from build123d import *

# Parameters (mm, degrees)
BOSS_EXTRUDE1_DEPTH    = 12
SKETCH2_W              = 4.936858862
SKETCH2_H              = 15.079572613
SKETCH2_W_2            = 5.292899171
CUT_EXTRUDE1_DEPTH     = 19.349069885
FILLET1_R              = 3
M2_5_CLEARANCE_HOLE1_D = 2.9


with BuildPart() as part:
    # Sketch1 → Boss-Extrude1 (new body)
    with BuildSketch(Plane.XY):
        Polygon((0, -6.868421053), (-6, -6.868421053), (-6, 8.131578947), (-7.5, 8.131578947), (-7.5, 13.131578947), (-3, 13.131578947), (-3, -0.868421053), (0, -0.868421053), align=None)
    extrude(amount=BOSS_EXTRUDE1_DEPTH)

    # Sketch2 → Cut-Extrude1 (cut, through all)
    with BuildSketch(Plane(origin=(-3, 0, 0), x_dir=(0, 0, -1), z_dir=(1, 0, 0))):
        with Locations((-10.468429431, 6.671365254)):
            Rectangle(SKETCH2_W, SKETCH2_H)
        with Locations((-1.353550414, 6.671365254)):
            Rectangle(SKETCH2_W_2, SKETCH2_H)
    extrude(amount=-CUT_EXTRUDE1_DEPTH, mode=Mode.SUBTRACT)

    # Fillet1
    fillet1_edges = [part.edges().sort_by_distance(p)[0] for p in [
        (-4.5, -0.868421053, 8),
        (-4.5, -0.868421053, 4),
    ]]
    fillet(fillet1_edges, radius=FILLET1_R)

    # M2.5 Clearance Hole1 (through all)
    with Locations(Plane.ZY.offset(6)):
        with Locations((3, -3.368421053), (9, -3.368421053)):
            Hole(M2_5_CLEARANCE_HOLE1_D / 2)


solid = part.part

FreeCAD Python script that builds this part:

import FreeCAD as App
import Part
import Sketcher

V = App.Vector
Q = App.Units.Quantity


def edges_at(feature, points):
    """Names of the edges that pass closest to the given points."""
    edges = feature.Shape.Edges
    near = lambda p: min(range(len(edges)), key=lambda i: edges[i].distToShape(Part.Vertex(*p))[0])
    return sorted({f"Edge{near(p) + 1}" for p in points})

doc = App.newDocument("Part")
body = doc.addObject("PartDesign::Body", "Body")

# Sketch on XY plane
sketch1 = body.newObject("Sketcher::SketchObject", "Sketch")
sketch1.AttachmentSupport = (doc.getObject("XY_Plane"), [""])
sketch1.MapMode = "FlatFace"
sketch1.addGeometry([
    Part.LineSegment(V(-6, -6.9, 0), V(0, -6.9, 0)),  # 0
    Part.LineSegment(V(0, -6.9, 0), V(0, -0.9, 0)),  # 1
    Part.LineSegment(V(0, -0.9, 0), V(-3, -0.9, 0)),  # 2
    Part.LineSegment(V(-3, -0.9, 0), V(-3, 13.1, 0)),  # 3
    Part.LineSegment(V(-3, 13.1, 0), V(-7.5, 13.1, 0)),  # 4
    Part.LineSegment(V(-7.5, 13.1, 0), V(-7.5, 8.1, 0)),  # 5
    Part.LineSegment(V(-7.5, 8.1, 0), V(-6, 8.1, 0)),  # 6
    Part.LineSegment(V(-6, 8.1, 0), V(-6, -6.9, 0)),  # 7
], False)
sketch1.addConstraint([
    Sketcher.Constraint("Coincident", 0, 2, 1, 1),
    Sketcher.Constraint("Coincident", 1, 2, 2, 1),
    Sketcher.Constraint("Coincident", 2, 2, 3, 1),
    Sketcher.Constraint("Coincident", 3, 2, 4, 1),
    Sketcher.Constraint("Coincident", 4, 2, 5, 1),
    Sketcher.Constraint("Coincident", 5, 2, 6, 1),
    Sketcher.Constraint("Coincident", 6, 2, 7, 1),
    Sketcher.Constraint("Coincident", 7, 2, 0, 1),
    Sketcher.Constraint("Horizontal", 0),
    Sketcher.Constraint("Vertical", 1),
    Sketcher.Constraint("Horizontal", 2),
    Sketcher.Constraint("Vertical", 3),
    Sketcher.Constraint("Horizontal", 4),
    Sketcher.Constraint("Vertical", 5),
    Sketcher.Constraint("Horizontal", 6),
    Sketcher.Constraint("Vertical", 7),
    Sketcher.Constraint("PointOnObject", 0, 2, -2),
    Sketcher.Constraint("Equal", 0, 1),
    Sketcher.Constraint("DistanceX", 0, 1, 0, 2, Q("6 mm")),
    Sketcher.Constraint("DistanceX", 2, 2, 2, 1, Q("3 mm")),
    Sketcher.Constraint("DistanceY", 3, 1, 3, 2, Q("14 mm")),
    Sketcher.Constraint("DistanceY", 5, 2, 5, 1, Q("5 mm")),
    Sketcher.Constraint("DistanceX", 4, 2, 4, 1, Q("4.5 mm")),
    Sketcher.Constraint("DistanceY", 0, 2, -1, 1, Q("6.868421 mm")),
])
pad1 = body.newObject("PartDesign::Pad", "Pad")
pad1.Profile = sketch1
pad1.Length = 12

# Sketch on YZ plane
sketch2 = body.newObject("Sketcher::SketchObject", "Sketch001")
sketch2.AttachmentSupport = (doc.getObject("YZ_Plane"), [""])
sketch2.MapMode = "FlatFace"
sketch2.AttachmentOffset = App.Placement(V(0, 0, -3), App.Rotation())
sketch2.addGeometry([
    Part.LineSegment(V(14.2, 12.9, 0), V(-0.9, 12.9, 0)),  # 0
    Part.LineSegment(V(-0.9, 12.9, 0), V(-0.9, 8, 0)),  # 1
    Part.LineSegment(V(-0.9, 8, 0), V(14.2, 8, 0)),  # 2
    Part.LineSegment(V(14.2, 8, 0), V(14.2, 12.9, 0)),  # 3
    Part.LineSegment(V(14.2, 4, 0), V(-0.9, 4, 0)),  # 4
    Part.LineSegment(V(-0.9, 4, 0), V(-0.9, -1.3, 0)),  # 5
    Part.LineSegment(V(-0.9, -1.3, 0), V(14.2, -1.3, 0)),  # 6
    Part.LineSegment(V(14.2, -1.3, 0), V(14.2, 4, 0)),  # 7
], False)
sketch2.addConstraint([
    Sketcher.Constraint("Coincident", 0, 2, 1, 1),
    Sketcher.Constraint("Coincident", 1, 2, 2, 1),
    Sketcher.Constraint("Coincident", 2, 2, 3, 1),
    Sketcher.Constraint("Coincident", 3, 2, 0, 1),
    Sketcher.Constraint("Coincident", 4, 2, 5, 1),
    Sketcher.Constraint("Coincident", 5, 2, 6, 1),
    Sketcher.Constraint("Coincident", 6, 2, 7, 1),
    Sketcher.Constraint("Coincident", 7, 2, 4, 1),
    Sketcher.Constraint("Horizontal", 0),
    Sketcher.Constraint("Vertical", 1),
    Sketcher.Constraint("Horizontal", 2),
    Sketcher.Constraint("Vertical", 3),
    Sketcher.Constraint("Horizontal", 4),
    Sketcher.Constraint("Vertical", 5),
    Sketcher.Constraint("Horizontal", 6),
    Sketcher.Constraint("Vertical", 7),
    Sketcher.Constraint("Vertical", 1, 2, 4, 2),
    Sketcher.Constraint("Vertical", 3, 2, 6, 2),
    Sketcher.Constraint("DistanceY", -1, 1, 1, 2, Q("8 mm")),
    Sketcher.Constraint("DistanceY", -1, 1, 4, 2, Q("4 mm")),
    Sketcher.Constraint("DistanceY", 5, 2, 5, 1, Q("5.292899 mm")),
    Sketcher.Constraint("DistanceY", 1, 2, 1, 1, Q("4.936859 mm")),
    Sketcher.Constraint("DistanceX", 0, 2, 0, 1, Q("15.079573 mm")),
    Sketcher.Constraint("DistanceX", 0, 2, -1, 1, Q("0.868421 mm")),
])
pocket1 = body.newObject("PartDesign::Pocket", "Pocket")
pocket1.Profile = sketch2
pocket1.Type = "ThroughAll"
doc.recompute()

fillet = body.newObject("PartDesign::Fillet", "Fillet")
fillet.Base = (pocket1, edges_at(pocket1, [(-4.5, -0.868, 8), (-4.5, -0.868, 4)]))
fillet.Radius = 3

# Sketch on YZ plane
sketch3 = body.newObject("Sketcher::SketchObject", "Sketch002")
sketch3.AttachmentSupport = (doc.getObject("YZ_Plane"), [""])
sketch3.MapMode = "FlatFace"
sketch3.AttachmentOffset = App.Placement(V(0, 0, -6), App.Rotation())
sketch3.addGeometry([
    Part.Circle(V(-3.4, 3, 0), V(0, 0, 1), 1.4),
    Part.Circle(V(-3.4, 9, 0), V(0, 0, 1), 1.4),
], False)
sketch3.addConstraint([
    Sketcher.Constraint("Equal", 0, 1),
    Sketcher.Constraint("Vertical", 0, 3, 1, 3),
    Sketcher.Constraint("Diameter", 0, Q("2.9 mm")),
    Sketcher.Constraint("DistanceY", -1, 1, 0, 3, Q("3 mm")),
    Sketcher.Constraint("DistanceY", -1, 1, 1, 3, Q("9 mm")),
    Sketcher.Constraint("DistanceX", 0, 3, -1, 1, Q("3.368421 mm")),
])
doc.recompute()
hole = body.newObject("PartDesign::Hole", "Hole")
hole.Profile = sketch3
hole.ThreadType = "None"
hole.Diameter = 2.9
hole.DepthType = "ThroughAll"
hole.Reversed = True

doc.recompute()
